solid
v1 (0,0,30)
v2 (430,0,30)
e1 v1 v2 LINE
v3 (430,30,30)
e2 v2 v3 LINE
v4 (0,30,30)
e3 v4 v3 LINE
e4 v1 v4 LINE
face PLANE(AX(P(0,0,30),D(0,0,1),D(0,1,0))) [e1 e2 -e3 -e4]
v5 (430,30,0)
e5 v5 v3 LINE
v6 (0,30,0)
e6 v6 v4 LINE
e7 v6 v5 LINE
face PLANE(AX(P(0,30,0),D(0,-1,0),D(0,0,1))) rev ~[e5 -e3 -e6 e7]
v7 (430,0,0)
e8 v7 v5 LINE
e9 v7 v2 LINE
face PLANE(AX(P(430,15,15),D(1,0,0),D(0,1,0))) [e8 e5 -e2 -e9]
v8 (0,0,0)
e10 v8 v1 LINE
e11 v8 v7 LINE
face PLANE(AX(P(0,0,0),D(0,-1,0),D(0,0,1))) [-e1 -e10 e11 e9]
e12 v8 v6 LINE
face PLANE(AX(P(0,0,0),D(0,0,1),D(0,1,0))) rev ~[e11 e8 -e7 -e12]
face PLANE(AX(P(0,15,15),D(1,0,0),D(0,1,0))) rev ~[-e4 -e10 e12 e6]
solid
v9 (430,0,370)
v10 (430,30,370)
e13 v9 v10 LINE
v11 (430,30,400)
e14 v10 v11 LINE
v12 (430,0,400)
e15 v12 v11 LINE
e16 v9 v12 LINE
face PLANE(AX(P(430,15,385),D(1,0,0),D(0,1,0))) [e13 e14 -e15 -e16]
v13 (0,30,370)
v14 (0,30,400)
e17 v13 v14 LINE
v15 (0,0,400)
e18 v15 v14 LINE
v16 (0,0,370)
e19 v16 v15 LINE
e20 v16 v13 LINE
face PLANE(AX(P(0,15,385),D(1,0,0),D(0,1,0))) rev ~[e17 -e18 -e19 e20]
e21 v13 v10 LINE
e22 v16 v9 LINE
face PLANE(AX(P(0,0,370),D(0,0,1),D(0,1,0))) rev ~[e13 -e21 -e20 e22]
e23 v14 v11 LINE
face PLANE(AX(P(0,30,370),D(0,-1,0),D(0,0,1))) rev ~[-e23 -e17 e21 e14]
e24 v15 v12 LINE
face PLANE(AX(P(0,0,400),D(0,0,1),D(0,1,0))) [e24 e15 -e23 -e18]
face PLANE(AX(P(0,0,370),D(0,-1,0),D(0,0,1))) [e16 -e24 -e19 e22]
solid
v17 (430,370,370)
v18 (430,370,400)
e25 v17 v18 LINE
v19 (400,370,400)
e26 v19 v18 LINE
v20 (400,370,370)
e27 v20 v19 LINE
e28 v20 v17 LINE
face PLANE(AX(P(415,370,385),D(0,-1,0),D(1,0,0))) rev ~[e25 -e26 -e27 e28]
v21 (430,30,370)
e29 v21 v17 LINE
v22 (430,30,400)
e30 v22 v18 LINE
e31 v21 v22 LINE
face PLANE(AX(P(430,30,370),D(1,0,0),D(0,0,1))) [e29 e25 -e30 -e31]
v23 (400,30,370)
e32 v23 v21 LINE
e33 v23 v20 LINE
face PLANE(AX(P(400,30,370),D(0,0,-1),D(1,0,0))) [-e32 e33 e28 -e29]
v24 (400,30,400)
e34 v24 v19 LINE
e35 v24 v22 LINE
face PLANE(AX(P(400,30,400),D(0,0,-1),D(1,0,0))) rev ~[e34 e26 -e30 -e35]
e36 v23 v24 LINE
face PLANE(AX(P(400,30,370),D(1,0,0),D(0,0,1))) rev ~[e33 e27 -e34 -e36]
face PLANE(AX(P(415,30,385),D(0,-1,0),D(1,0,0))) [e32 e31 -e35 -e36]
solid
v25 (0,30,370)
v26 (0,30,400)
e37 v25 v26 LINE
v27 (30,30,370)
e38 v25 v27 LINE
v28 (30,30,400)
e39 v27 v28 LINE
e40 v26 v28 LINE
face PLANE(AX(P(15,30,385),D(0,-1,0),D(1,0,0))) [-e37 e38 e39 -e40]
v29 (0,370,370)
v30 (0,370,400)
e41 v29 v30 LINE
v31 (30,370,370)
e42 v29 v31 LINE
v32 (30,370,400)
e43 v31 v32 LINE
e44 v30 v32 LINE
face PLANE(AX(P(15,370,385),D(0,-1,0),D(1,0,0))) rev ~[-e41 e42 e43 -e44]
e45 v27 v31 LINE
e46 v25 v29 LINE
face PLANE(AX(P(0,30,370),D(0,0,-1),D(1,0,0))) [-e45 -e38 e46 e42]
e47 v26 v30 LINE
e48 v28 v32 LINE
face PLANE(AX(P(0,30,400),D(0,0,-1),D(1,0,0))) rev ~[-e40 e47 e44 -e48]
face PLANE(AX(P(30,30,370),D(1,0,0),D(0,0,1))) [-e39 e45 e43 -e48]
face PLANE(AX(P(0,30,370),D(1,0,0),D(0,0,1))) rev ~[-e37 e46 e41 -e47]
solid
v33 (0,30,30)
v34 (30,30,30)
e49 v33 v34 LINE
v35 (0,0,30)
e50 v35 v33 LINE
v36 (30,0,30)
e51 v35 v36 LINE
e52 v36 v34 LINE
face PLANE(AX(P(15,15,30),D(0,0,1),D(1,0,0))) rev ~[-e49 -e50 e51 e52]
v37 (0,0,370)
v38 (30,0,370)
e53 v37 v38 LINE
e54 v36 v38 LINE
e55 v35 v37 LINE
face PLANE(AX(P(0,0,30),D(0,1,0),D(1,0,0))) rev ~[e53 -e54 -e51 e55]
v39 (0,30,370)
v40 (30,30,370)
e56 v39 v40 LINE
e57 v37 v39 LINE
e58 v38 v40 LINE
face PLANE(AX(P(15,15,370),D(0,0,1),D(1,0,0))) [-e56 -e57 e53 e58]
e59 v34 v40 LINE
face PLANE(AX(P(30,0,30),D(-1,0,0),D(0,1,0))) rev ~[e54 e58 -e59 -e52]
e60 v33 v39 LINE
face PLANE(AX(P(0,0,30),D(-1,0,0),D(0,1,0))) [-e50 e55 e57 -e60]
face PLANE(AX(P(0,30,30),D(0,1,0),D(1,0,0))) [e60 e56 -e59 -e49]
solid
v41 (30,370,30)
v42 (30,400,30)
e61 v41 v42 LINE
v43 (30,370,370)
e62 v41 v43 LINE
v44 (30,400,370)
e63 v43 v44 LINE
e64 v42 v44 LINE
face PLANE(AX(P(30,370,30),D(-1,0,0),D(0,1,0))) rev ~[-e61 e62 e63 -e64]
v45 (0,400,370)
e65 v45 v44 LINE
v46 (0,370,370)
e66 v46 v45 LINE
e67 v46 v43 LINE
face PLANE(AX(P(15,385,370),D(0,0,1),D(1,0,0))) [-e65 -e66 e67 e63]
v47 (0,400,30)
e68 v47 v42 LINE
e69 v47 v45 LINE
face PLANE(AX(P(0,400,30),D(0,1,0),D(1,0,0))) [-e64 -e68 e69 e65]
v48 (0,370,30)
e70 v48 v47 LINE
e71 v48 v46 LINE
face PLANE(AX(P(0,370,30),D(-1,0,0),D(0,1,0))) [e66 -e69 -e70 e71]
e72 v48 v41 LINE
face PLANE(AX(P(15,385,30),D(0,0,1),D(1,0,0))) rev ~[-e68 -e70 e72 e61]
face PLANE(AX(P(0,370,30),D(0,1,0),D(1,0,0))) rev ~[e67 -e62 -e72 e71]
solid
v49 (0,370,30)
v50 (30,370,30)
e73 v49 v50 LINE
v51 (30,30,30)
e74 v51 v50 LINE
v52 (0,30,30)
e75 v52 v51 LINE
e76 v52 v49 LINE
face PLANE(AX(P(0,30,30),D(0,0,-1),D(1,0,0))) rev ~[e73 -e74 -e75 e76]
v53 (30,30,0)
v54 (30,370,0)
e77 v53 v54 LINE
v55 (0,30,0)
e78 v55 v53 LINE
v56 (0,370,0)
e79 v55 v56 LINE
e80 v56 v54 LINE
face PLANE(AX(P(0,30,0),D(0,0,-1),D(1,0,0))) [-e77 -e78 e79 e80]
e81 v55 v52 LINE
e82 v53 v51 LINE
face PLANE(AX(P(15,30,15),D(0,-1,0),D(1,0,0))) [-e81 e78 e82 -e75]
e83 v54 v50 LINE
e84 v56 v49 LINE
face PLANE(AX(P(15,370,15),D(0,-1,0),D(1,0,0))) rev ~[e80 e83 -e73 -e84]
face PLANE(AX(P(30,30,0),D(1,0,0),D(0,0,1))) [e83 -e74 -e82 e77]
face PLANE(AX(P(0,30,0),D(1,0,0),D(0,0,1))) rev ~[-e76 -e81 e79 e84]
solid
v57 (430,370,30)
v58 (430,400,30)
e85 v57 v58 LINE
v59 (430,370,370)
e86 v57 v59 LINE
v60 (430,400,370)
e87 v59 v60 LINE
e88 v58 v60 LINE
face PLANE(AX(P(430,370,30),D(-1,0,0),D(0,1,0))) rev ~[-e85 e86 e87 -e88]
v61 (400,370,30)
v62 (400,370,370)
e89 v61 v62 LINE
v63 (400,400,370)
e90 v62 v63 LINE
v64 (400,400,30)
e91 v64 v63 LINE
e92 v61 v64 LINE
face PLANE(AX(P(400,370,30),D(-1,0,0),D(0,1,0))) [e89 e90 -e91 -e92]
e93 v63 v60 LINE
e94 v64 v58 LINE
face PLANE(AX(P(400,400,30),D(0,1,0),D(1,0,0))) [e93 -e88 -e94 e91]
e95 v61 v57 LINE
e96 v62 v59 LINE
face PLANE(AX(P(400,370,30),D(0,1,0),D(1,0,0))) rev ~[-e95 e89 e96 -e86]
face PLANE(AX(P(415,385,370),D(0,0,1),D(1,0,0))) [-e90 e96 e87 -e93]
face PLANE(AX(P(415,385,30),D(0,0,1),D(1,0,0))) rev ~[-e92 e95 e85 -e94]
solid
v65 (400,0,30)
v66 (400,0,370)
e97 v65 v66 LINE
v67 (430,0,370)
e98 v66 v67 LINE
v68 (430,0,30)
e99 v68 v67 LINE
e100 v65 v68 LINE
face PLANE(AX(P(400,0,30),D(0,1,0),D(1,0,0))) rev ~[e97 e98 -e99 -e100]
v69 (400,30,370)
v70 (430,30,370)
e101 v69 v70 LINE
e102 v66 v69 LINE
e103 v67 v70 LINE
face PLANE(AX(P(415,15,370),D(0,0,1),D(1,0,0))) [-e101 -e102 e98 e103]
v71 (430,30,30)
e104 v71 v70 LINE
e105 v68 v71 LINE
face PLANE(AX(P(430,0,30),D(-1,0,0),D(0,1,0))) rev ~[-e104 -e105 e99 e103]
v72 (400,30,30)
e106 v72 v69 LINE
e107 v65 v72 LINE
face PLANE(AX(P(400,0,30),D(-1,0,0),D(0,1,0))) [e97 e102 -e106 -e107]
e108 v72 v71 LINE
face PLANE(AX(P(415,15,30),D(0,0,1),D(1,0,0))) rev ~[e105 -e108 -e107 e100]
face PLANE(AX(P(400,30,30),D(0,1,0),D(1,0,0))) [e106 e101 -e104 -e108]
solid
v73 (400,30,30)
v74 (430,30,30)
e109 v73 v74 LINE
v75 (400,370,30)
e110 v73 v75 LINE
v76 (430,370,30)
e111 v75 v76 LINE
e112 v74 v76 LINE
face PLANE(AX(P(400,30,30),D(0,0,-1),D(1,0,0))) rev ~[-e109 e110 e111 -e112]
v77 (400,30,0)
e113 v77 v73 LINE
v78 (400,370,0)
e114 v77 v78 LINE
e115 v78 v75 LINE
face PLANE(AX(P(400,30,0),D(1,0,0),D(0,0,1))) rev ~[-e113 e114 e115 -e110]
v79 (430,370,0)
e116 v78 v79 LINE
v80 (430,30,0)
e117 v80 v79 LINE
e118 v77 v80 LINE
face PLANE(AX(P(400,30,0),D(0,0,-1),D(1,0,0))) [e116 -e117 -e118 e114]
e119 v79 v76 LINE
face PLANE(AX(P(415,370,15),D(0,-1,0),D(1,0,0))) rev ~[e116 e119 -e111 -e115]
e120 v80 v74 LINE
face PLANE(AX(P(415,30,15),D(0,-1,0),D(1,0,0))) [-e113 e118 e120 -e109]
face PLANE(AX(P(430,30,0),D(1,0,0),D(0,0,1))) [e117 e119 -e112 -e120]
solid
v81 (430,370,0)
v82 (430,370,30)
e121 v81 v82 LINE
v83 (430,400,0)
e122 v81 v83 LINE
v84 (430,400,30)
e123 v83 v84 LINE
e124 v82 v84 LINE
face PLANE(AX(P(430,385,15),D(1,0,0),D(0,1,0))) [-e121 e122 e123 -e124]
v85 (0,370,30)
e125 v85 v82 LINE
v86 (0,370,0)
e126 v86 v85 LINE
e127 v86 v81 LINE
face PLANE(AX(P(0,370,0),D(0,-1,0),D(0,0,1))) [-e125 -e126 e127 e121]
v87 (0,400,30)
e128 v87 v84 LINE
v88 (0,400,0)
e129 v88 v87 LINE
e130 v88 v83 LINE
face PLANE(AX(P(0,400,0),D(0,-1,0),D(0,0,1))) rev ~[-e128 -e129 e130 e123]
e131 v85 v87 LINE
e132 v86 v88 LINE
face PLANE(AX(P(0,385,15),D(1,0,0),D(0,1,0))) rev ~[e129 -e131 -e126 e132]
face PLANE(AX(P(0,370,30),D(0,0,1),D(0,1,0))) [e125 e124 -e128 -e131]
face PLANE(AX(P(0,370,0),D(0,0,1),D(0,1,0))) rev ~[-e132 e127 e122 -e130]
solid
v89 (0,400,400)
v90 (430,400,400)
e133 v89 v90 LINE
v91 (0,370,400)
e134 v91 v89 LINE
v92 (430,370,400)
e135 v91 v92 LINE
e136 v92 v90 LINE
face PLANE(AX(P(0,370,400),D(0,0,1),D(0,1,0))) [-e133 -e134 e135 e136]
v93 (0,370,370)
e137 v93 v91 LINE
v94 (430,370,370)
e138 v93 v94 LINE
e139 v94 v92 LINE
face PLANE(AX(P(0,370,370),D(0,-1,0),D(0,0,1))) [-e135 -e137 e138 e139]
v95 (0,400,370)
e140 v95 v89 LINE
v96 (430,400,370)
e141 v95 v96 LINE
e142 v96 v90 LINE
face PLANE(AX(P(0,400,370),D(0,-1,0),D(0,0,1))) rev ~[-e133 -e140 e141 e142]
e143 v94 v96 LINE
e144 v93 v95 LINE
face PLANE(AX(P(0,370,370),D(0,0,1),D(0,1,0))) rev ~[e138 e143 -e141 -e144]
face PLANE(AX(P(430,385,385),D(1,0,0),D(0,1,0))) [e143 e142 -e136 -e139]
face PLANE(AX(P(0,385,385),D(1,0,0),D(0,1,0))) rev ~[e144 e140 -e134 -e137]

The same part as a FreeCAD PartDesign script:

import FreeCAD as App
import Part
import Sketcher
Q = App.Units.Quantity


def add_polygon(sketch, points):
    """Adds a closed chain of lines whose ends are joined by coincident constraints."""
    first, n = sketch.GeometryCount, len(points)
    for a, b in zip(points, points[1:] + points[:1]):
        sketch.addGeometry(Part.LineSegment(App.Vector(*a, 0), App.Vector(*b, 0)), False)
    for i in range(n):
        sketch.addConstraint(Sketcher.Constraint("Coincident", first + i, 2, first + (i + 1) % n, 1))

doc = App.newDocument("Part")
body = doc.addObject("PartDesign::Body", "Body")

sketch1 = body.newObject("Sketcher::SketchObject", "Sketch")
sketch1.AttachmentSupport = (doc.getObject("XZ_Plane"), [""])
sketch1.MapMode = "FlatFace"
sketch1.AttachmentOffset = App.Placement(App.Vector(0, 0, -30), App.Rotation())
add_polygon(sketch1, [(0, 400), (0, 370), (30, 370), (30, 400)])
sketch1.addConstraint(Sketcher.Constraint("Vertical", 0))
sketch1.addConstraint(Sketcher.Constraint("Horizontal", 1))
sketch1.addConstraint(Sketcher.Constraint("Vertical", 2))
sketch1.addConstraint(Sketcher.Constraint("Horizontal", 3))
sketch1.addConstraint(Sketcher.Constraint("PointOnObject", 0, 2, -2))
sketch1.addConstraint(Sketcher.Constraint("Equal", 3, 0))
sketch1.addConstraint(Sketcher.Constraint("DistanceX", 1, 1, 1, 2, Q("30 mm")))
sketch1.addConstraint(Sketcher.Constraint("DistanceY", -1, 1, 0, 2, Q("370 mm")))
pad1 = body.newObject("PartDesign::Pad", "Pad")
pad1.Profile = sketch1
pad1.Length = 340
pad1.Reversed = True
body2 = doc.addObject("PartDesign::Body", "Body001")

sketch2 = body2.newObject("Sketcher::SketchObject", "Sketch001")
sketch2.AttachmentSupport = (doc.getObject("XZ_Plane001"), [""])
sketch2.MapMode = "FlatFace"
sketch2.AttachmentOffset = App.Placement(App.Vector(0, 0, -30), App.Rotation())
add_polygon(sketch2, [(0, 30), (0, 0), (30, 0), (30, 30)])
sketch2.addConstraint(Sketcher.Constraint("Vertical", 0))
sketch2.addConstraint(Sketcher.Constraint("Horizontal", 1))
sketch2.addConstraint(Sketcher.Constraint("Vertical", 2))
sketch2.addConstraint(Sketcher.Constraint("Horizontal", 3))
sketch2.addConstraint(Sketcher.Constraint("Coincident", 0, 2, -1, 1))
sketch2.addConstraint(Sketcher.Constraint("Equal", 3, 0))
sketch2.addConstraint(Sketcher.Constraint("DistanceX", 1, 1, 1, 2, Q("30 mm")))
pad2 = body2.newObject("PartDesign::Pad", "Pad001")
pad2.Profile = sketch2
pad2.Length = 340
pad2.Reversed = True
body3 = doc.addObject("PartDesign::Body", "Body002")

sketch3 = body3.newObject("Sketcher::SketchObject", "Sketch002")
sketch3.AttachmentSupport = (doc.getObject("XZ_Plane002"), [""])
sketch3.MapMode = "FlatFace"
sketch3.AttachmentOffset = App.Placement(App.Vector(0, 0, -30), App.Rotation())
add_polygon(sketch3, [(400, 30), (400, 0), (430, 0), (430, 30)])
sketch3.addConstraint(Sketcher.Constraint("Vertical", 0))
sketch3.addConstraint(Sketcher.Constraint("Horizontal", 1))
sketch3.addConstraint(Sketcher.Constraint("Vertical", 2))
sketch3.addConstraint(Sketcher.Constraint("Horizontal", 3))
sketch3.addConstraint(Sketcher.Constraint("PointOnObject", 0, 2, -1))
sketch3.addConstraint(Sketcher.Constraint("Equal", 3, 0))
sketch3.addConstraint(Sketcher.Constraint("DistanceX", 1, 1, 1, 2, Q("30 mm")))
sketch3.addConstraint(Sketcher.Constraint("DistanceX", -1, 1, 0, 2, Q("400 mm")))
pad3 = body3.newObject("PartDesign::Pad", "Pad002")
pad3.Profile = sketch3
pad3.Length = 340
pad3.Reversed = True
body4 = doc.addObject("PartDesign::Body", "Body003")

sketch4 = body4.newObject("Sketcher::SketchObject", "Sketch003")
sketch4.AttachmentSupport = (doc.getObject("XZ_Plane003"), [""])
sketch4.MapMode = "FlatFace"
sketch4.AttachmentOffset = App.Placement(App.Vector(0, 0, -30), App.Rotation())
add_polygon(sketch4, [(400, 400), (400, 370), (430, 370), (430, 400)])
sketch4.addConstraint(Sketcher.Constraint("Vertical", 0))
sketch4.addConstraint(Sketcher.Constraint("Horizontal", 1))
sketch4.addConstraint(Sketcher.Constraint("Vertical", 2))
sketch4.addConstraint(Sketcher.Constraint("Horizontal", 3))
sketch4.addConstraint(Sketcher.Constraint("Equal", 3, 0))
sketch4.addConstraint(Sketcher.Constraint("DistanceX", 1, 1, 1, 2, Q("30 mm")))
sketch4.addConstraint(Sketcher.Constraint("DistanceX", -1, 1, 0, 2, Q("400 mm")))
sketch4.addConstraint(Sketcher.Constraint("DistanceY", -1, 1, 0, 2, Q("370 mm")))
pad4 = body4.newObject("PartDesign::Pad", "Pad003")
pad4.Profile = sketch4
pad4.Length = 340
pad4.Reversed = True
body5 = doc.addObject("PartDesign::Body", "Body004")

sketch5 = body5.newObject("Sketcher::SketchObject", "Sketch004")
sketch5.AttachmentSupport = (doc.getObject("YZ_Plane004"), [""])
sketch5.MapMode = "FlatFace"
add_polygon(sketch5, [(370, 400), (370, 370), (400, 370), (400, 400)])
sketch5.addConstraint(Sketcher.Constraint("Vertical", 0))
sketch5.addConstraint(Sketcher.Constraint("Horizontal", 1))
sketch5.addConstraint(Sketcher.Constraint("Vertical", 2))
sketch5.addConstraint(Sketcher.Constraint("Horizontal", 3))
sketch5.addConstraint(Sketcher.Constraint("Equal", 3, 0))
sketch5.addConstraint(Sketcher.Constraint("DistanceX", 1, 1, 1, 2, Q("30 mm")))
sketch5.addConstraint(Sketcher.Constraint("DistanceX", -1, 1, 0, 2, Q("370 mm")))
sketch5.addConstraint(Sketcher.Constraint("DistanceY", -1, 1, 0, 2, Q("370 mm")))
pad5 = body5.newObject("PartDesign::Pad", "Pad004")
pad5.Profile = sketch5
pad5.Length = 430
body6 = doc.addObject("PartDesign::Body", "Body005")

sketch6 = body6.newObject("Sketcher::SketchObject", "Sketch005")
sketch6.AttachmentSupport = (doc.getObject("YZ_Plane005"), [""])
sketch6.MapMode = "FlatFace"
add_polygon(sketch6, [(370, 30), (370, 0), (400, 0), (400, 30)])
sketch6.addConstraint(Sketcher.Constraint("Vertical", 0))
sketch6.addConstraint(Sketcher.Constraint("Horizontal", 1))
sketch6.addConstraint(Sketcher.Constraint("Vertical", 2))
sketch6.addConstraint(Sketcher.Constraint("Horizontal", 3))
sketch6.addConstraint(Sketcher.Constraint("PointOnObject", 0, 2, -1))
sketch6.addConstraint(Sketcher.Constraint("Equal", 3, 0))
sketch6.addConstraint(Sketcher.Constraint("DistanceX", 1, 1, 1, 2, Q("30 mm")))
sketch6.addConstraint(Sketcher.Constraint("DistanceX", -1, 1, 0, 2, Q("370 mm")))
pad6 = body6.newObject("PartDesign::Pad", "Pad005")
pad6.Profile = sketch6
pad6.Length = 430
body7 = doc.addObject("PartDesign::Body", "Body006")

sketch7 = body7.newObject("Sketcher::SketchObject", "Sketch006")
sketch7.AttachmentSupport = (doc.getObject("YZ_Plane006"), [""])
sketch7.MapMode = "FlatFace"
add_polygon(sketch7, [(0, 30), (0, 0), (30, 0), (30, 30)])
sketch7.addConstraint(Sketcher.Constraint("Vertical", 0))
sketch7.addConstraint(Sketcher.Constraint("Horizontal", 1))
sketch7.addConstraint(Sketcher.Constraint("Vertical", 2))
sketch7.addConstraint(Sketcher.Constraint("Horizontal", 3))
sketch7.addConstraint(Sketcher.Constraint("Coincident", 0, 2, -1, 1))
sketch7.addConstraint(Sketcher.Constraint("Equal", 3, 0))
sketch7.addConstraint(Sketcher.Constraint("DistanceX", 1, 1, 1, 2, Q("30 mm")))
pad7 = body7.newObject("PartDesign::Pad", "Pad006")
pad7.Profile = sketch7
pad7.Length = 430
body8 = doc.addObject("PartDesign::Body", "Body007")

sketch8 = body8.newObject("Sketcher::SketchObject", "Sketch007")
sketch8.AttachmentSupport = (doc.getObject("YZ_Plane007"), [""])
sketch8.MapMode = "FlatFace"
add_polygon(sketch8, [(0, 400), (0, 370), (30, 370), (30, 400)])
sketch8.addConstraint(Sketcher.Constraint("Vertical", 0))
sketch8.addConstraint(Sketcher.Constraint("Horizontal", 1))
sketch8.addConstraint(Sketcher.Constraint("Vertical", 2))
sketch8.addConstraint(Sketcher.Constraint("Horizontal", 3))
sketch8.addConstraint(Sketcher.Constraint("PointOnObject", 0, 2, -2))
sketch8.addConstraint(Sketcher.Constraint("Equal", 3, 0))
sketch8.addConstraint(Sketcher.Constraint("DistanceX", 1, 1, 1, 2, Q("30 mm")))
sketch8.addConstraint(Sketcher.Constraint("DistanceY", -1, 1, 0, 2, Q("370 mm")))
pad8 = body8.newObject("PartDesign::Pad", "Pad007")
pad8.Profile = sketch8
pad8.Length = 430
body9 = doc.addObject("PartDesign::Body", "Body008")

sketch9 = body9.newObject("Sketcher::SketchObject", "Sketch008")
sketch9.AttachmentSupport = (doc.getObject("XY_Plane008"), [""])
sketch9.MapMode = "FlatFace"
sketch9.AttachmentOffset = App.Placement(App.Vector(0, 0, 30), App.Rotation())
add_polygon(sketch9, [(0, 30), (0, 0), (30, 0), (30, 30)])
sketch9.addConstraint(Sketcher.Constraint("Vertical", 0))
sketch9.addConstraint(Sketcher.Constraint("Horizontal", 1))
sketch9.addConstraint(Sketcher.Constraint("Vertical", 2))
sketch9.addConstraint(Sketcher.Constraint("Horizontal", 3))
sketch9.addConstraint(Sketcher.Constraint("Coincident", 0, 2, -1, 1))
sketch9.addConstraint(Sketcher.Constraint("Equal", 3, 0))
sketch9.addConstraint(Sketcher.Constraint("DistanceX", 1, 1, 1, 2, Q("30 mm")))
pad9 = body9.newObject("PartDesign::Pad", "Pad008")
pad9.Profile = sketch9
pad9.Length = 340
body10 = doc.addObject("PartDesign::Body", "Body009")

sketch10 = body10.newObject("Sketcher::SketchObject", "Sketch009")
sketch10.AttachmentSupport = (doc.getObject("XY_Plane009"), [""])
sketch10.MapMode = "FlatFace"
sketch10.AttachmentOffset = App.Placement(App.Vector(0, 0, 30), App.Rotation())
add_polygon(sketch10, [(400, 30), (400, 0), (430, 0), (430, 30)])
sketch10.addConstraint(Sketcher.Constraint("Vertical", 0))
sketch10.addConstraint(Sketcher.Constraint("Horizontal", 1))
sketch10.addConstraint(Sketcher.Constraint("Vertical", 2))
sketch10.addConstraint(Sketcher.Constraint("Horizontal", 3))
sketch10.addConstraint(Sketcher.Constraint("PointOnObject", 0, 2, -1))
sketch10.addConstraint(Sketcher.Constraint("Equal", 3, 0))
sketch10.addConstraint(Sketcher.Constraint("DistanceX", 1, 1, 1, 2, Q("30 mm")))
sketch10.addConstraint(Sketcher.Constraint("DistanceX", -1, 1, 0, 2, Q("400 mm")))
pad10 = body10.newObject("PartDesign::Pad", "Pad009")
pad10.Profile = sketch10
pad10.Length = 340
body11 = doc.addObject("PartDesign::Body", "Body010")

sketch11 = body11.newObject("Sketcher::SketchObject", "Sketch010")
sketch11.AttachmentSupport = (doc.getObject("XY_Plane010"), [""])
sketch11.MapMode = "FlatFace"
sketch11.AttachmentOffset = App.Placement(App.Vector(0, 0, 30), App.Rotation())
add_polygon(sketch11, [(400, 400), (400, 370), (430, 370), (430, 400)])
sketch11.addConstraint(Sketcher.Constraint("Vertical", 0))
sketch11.addConstraint(Sketcher.Constraint("Horizontal", 1))
sketch11.addConstraint(Sketcher.Constraint("Vertical", 2))
sketch11.addConstraint(Sketcher.Constraint("Horizontal", 3))
sketch11.addConstraint(Sketcher.Constraint("Equal", 3, 0))
sketch11.addConstraint(Sketcher.Constraint("DistanceX", 1, 1, 1, 2, Q("30 mm")))
sketch11.addConstraint(Sketcher.Constraint("DistanceX", -1, 1, 0, 2, Q("400 mm")))
sketch11.addConstraint(Sketcher.Constraint("DistanceY", -1, 1, 0, 2, Q("370 mm")))
pad11 = body11.newObject("PartDesign::Pad", "Pad010")
pad11.Profile = sketch11
pad11.Length = 340
body12 = doc.addObject("PartDesign::Body", "Body011")

sketch12 = body12.newObject("Sketcher::SketchObject", "Sketch011")
sketch12.AttachmentSupport = (doc.getObject("XY_Plane011"), [""])
sketch12.MapMode = "FlatFace"
sketch12.AttachmentOffset = App.Placement(App.Vector(0, 0, 30), App.Rotation())
add_polygon(sketch12, [(0, 400), (0, 370), (30, 370), (30, 400)])
sketch12.addConstraint(Sketcher.Constraint("Vertical", 0))
sketch12.addConstraint(Sketcher.Constraint("Horizontal", 1))
sketch12.addConstraint(Sketcher.Constraint("Vertical", 2))
sketch12.addConstraint(Sketcher.Constraint("Horizontal", 3))
sketch12.addConstraint(Sketcher.Constraint("PointOnObject", 0, 2, -2))
sketch12.addConstraint(Sketcher.Constraint("Equal", 3, 0))
sketch12.addConstraint(Sketcher.Constraint("DistanceX", 1, 1, 1, 2, Q("30 mm")))
sketch12.addConstraint(Sketcher.Constraint("DistanceY", -1, 1, 0, 2, Q("370 mm")))
pad12 = body12.newObject("PartDesign::Pad", "Pad011")
pad12.Profile = sketch12
pad12.Length = 340

doc.recompute()
